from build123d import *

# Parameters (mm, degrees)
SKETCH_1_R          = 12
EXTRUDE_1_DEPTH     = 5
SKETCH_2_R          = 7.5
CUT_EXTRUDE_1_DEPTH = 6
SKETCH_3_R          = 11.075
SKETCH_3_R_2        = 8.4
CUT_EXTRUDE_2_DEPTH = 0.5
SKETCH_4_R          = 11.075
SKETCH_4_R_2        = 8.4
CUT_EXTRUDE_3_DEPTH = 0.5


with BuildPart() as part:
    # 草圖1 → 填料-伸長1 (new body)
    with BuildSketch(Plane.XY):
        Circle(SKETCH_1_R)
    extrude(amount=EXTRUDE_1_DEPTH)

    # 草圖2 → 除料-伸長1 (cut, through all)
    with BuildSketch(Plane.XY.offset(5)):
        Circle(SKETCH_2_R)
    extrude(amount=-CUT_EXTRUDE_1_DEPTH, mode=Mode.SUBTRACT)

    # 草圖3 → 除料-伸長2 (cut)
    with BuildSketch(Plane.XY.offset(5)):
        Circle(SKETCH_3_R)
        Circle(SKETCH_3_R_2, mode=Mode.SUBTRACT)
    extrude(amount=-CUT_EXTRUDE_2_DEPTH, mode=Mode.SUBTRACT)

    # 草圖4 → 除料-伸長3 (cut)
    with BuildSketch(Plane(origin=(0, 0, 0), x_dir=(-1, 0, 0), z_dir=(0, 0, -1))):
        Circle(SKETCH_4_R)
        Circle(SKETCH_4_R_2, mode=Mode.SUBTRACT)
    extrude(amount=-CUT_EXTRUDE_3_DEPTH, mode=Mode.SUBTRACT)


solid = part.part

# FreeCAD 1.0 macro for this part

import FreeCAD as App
import Part
import Sketcher

V = App.Vector

doc = App.newDocument("Part")
body = doc.addObject("PartDesign::Body", "Body")

# Sketch on XY plane
sketch1 = body.newObject("Sketcher::SketchObject", "Sketch")
sketch1.AttachmentSupport = (doc.getObject("XY_Plane"), [""])
sketch1.MapMode = "FlatFace"
sketch1.addGeometry(Part.Circle(V(0, 0, 0), V(0, 0, 1), 12), False)
sketch1.addConstraint([
    Sketcher.Constraint("Coincident", 0, 3, -1, 1),
    Sketcher.Constraint("Diameter", 0, 24.0),
])
pad1 = body.newObject("PartDesign::Pad", "Pad")
pad1.Profile = sketch1
pad1.Length = 5

# Sketch on XY plane
sketch2 = body.newObject("Sketcher::SketchObject", "Sketch001")
sketch2.AttachmentSupport = (doc.getObject("XY_Plane"), [""])
sketch2.MapMode = "FlatFace"
sketch2.AttachmentOffset = App.Placement(V(0, 0, 5), App.Rotation())
sketch2.addGeometry(Part.Circle(V(0, 0, 0), V(0, 0, 1), 8), False)
sketch2.addConstraint([
    Sketcher.Constraint("Coincident", 0, 3, -1, 1),
    Sketcher.Constraint("Diameter", 0, 15.0),
])
pocket1 = body.newObject("PartDesign::Pocket", "Pocket")
pocket1.Profile = sketch2
pocket1.Type = "ThroughAll"

# Sketch on XY plane
sketch3 = body.newObject("Sketcher::SketchObject", "Sketch002")
sketch3.AttachmentSupport = (doc.getObject("XY_Plane"), [""])
sketch3.MapMode = "FlatFace"
sketch3.AttachmentOffset = App.Placement(V(0, 0, 5), App.Rotation())
sketch3.addGeometry([
    Part.Circle(V(0, 0, 0), V(0, 0, 1), 11),
    Part.Circle(V(0, 0, 0), V(0, 0, 1), 8),
], False)
sketch3.addConstraint([
    Sketcher.Constraint("Coincident", 0, 3, -1, 1),
    Sketcher.Constraint("Coincident", 1, 3, -1, 1),
    Sketcher.Constraint("Diameter", 1, 16.8),
    Sketcher.Constraint("Diameter", 0, 22.15),
])
pocket2 = body.newObject("PartDesign::Pocket", "Pocket001")
pocket2.Profile = sketch3
pocket2.Length = 0.5

# Sketch on XY plane
sketch4 = body.newObject("Sketcher::SketchObject", "Sketch003")
sketch4.AttachmentSupport = (doc.getObject("XY_Plane"), [""])
sketch4.MapMode = "FlatFace"
sketch4.addGeometry([
    Part.Circle(V(0, 0, 0), V(0, 0, 1), 11),
    Part.Circle(V(0, 0, 0), V(0, 0, 1), 8),
], False)
sketch4.addConstraint([
    Sketcher.Constraint("Coincident", 0, 3, -1, 1),
    Sketcher.Constraint("Coincident", 1, 3, -1, 1),
    Sketcher.Constraint("Diameter", 1, 16.8),
    Sketcher.Constraint("Diameter", 0, 22.15),
])
pocket3 = body.newObject("PartDesign::Pocket", "Pocket002")
pocket3.Profile = sketch4
pocket3.Length = 0.5
pocket3.Reversed = True

doc.recompute()
